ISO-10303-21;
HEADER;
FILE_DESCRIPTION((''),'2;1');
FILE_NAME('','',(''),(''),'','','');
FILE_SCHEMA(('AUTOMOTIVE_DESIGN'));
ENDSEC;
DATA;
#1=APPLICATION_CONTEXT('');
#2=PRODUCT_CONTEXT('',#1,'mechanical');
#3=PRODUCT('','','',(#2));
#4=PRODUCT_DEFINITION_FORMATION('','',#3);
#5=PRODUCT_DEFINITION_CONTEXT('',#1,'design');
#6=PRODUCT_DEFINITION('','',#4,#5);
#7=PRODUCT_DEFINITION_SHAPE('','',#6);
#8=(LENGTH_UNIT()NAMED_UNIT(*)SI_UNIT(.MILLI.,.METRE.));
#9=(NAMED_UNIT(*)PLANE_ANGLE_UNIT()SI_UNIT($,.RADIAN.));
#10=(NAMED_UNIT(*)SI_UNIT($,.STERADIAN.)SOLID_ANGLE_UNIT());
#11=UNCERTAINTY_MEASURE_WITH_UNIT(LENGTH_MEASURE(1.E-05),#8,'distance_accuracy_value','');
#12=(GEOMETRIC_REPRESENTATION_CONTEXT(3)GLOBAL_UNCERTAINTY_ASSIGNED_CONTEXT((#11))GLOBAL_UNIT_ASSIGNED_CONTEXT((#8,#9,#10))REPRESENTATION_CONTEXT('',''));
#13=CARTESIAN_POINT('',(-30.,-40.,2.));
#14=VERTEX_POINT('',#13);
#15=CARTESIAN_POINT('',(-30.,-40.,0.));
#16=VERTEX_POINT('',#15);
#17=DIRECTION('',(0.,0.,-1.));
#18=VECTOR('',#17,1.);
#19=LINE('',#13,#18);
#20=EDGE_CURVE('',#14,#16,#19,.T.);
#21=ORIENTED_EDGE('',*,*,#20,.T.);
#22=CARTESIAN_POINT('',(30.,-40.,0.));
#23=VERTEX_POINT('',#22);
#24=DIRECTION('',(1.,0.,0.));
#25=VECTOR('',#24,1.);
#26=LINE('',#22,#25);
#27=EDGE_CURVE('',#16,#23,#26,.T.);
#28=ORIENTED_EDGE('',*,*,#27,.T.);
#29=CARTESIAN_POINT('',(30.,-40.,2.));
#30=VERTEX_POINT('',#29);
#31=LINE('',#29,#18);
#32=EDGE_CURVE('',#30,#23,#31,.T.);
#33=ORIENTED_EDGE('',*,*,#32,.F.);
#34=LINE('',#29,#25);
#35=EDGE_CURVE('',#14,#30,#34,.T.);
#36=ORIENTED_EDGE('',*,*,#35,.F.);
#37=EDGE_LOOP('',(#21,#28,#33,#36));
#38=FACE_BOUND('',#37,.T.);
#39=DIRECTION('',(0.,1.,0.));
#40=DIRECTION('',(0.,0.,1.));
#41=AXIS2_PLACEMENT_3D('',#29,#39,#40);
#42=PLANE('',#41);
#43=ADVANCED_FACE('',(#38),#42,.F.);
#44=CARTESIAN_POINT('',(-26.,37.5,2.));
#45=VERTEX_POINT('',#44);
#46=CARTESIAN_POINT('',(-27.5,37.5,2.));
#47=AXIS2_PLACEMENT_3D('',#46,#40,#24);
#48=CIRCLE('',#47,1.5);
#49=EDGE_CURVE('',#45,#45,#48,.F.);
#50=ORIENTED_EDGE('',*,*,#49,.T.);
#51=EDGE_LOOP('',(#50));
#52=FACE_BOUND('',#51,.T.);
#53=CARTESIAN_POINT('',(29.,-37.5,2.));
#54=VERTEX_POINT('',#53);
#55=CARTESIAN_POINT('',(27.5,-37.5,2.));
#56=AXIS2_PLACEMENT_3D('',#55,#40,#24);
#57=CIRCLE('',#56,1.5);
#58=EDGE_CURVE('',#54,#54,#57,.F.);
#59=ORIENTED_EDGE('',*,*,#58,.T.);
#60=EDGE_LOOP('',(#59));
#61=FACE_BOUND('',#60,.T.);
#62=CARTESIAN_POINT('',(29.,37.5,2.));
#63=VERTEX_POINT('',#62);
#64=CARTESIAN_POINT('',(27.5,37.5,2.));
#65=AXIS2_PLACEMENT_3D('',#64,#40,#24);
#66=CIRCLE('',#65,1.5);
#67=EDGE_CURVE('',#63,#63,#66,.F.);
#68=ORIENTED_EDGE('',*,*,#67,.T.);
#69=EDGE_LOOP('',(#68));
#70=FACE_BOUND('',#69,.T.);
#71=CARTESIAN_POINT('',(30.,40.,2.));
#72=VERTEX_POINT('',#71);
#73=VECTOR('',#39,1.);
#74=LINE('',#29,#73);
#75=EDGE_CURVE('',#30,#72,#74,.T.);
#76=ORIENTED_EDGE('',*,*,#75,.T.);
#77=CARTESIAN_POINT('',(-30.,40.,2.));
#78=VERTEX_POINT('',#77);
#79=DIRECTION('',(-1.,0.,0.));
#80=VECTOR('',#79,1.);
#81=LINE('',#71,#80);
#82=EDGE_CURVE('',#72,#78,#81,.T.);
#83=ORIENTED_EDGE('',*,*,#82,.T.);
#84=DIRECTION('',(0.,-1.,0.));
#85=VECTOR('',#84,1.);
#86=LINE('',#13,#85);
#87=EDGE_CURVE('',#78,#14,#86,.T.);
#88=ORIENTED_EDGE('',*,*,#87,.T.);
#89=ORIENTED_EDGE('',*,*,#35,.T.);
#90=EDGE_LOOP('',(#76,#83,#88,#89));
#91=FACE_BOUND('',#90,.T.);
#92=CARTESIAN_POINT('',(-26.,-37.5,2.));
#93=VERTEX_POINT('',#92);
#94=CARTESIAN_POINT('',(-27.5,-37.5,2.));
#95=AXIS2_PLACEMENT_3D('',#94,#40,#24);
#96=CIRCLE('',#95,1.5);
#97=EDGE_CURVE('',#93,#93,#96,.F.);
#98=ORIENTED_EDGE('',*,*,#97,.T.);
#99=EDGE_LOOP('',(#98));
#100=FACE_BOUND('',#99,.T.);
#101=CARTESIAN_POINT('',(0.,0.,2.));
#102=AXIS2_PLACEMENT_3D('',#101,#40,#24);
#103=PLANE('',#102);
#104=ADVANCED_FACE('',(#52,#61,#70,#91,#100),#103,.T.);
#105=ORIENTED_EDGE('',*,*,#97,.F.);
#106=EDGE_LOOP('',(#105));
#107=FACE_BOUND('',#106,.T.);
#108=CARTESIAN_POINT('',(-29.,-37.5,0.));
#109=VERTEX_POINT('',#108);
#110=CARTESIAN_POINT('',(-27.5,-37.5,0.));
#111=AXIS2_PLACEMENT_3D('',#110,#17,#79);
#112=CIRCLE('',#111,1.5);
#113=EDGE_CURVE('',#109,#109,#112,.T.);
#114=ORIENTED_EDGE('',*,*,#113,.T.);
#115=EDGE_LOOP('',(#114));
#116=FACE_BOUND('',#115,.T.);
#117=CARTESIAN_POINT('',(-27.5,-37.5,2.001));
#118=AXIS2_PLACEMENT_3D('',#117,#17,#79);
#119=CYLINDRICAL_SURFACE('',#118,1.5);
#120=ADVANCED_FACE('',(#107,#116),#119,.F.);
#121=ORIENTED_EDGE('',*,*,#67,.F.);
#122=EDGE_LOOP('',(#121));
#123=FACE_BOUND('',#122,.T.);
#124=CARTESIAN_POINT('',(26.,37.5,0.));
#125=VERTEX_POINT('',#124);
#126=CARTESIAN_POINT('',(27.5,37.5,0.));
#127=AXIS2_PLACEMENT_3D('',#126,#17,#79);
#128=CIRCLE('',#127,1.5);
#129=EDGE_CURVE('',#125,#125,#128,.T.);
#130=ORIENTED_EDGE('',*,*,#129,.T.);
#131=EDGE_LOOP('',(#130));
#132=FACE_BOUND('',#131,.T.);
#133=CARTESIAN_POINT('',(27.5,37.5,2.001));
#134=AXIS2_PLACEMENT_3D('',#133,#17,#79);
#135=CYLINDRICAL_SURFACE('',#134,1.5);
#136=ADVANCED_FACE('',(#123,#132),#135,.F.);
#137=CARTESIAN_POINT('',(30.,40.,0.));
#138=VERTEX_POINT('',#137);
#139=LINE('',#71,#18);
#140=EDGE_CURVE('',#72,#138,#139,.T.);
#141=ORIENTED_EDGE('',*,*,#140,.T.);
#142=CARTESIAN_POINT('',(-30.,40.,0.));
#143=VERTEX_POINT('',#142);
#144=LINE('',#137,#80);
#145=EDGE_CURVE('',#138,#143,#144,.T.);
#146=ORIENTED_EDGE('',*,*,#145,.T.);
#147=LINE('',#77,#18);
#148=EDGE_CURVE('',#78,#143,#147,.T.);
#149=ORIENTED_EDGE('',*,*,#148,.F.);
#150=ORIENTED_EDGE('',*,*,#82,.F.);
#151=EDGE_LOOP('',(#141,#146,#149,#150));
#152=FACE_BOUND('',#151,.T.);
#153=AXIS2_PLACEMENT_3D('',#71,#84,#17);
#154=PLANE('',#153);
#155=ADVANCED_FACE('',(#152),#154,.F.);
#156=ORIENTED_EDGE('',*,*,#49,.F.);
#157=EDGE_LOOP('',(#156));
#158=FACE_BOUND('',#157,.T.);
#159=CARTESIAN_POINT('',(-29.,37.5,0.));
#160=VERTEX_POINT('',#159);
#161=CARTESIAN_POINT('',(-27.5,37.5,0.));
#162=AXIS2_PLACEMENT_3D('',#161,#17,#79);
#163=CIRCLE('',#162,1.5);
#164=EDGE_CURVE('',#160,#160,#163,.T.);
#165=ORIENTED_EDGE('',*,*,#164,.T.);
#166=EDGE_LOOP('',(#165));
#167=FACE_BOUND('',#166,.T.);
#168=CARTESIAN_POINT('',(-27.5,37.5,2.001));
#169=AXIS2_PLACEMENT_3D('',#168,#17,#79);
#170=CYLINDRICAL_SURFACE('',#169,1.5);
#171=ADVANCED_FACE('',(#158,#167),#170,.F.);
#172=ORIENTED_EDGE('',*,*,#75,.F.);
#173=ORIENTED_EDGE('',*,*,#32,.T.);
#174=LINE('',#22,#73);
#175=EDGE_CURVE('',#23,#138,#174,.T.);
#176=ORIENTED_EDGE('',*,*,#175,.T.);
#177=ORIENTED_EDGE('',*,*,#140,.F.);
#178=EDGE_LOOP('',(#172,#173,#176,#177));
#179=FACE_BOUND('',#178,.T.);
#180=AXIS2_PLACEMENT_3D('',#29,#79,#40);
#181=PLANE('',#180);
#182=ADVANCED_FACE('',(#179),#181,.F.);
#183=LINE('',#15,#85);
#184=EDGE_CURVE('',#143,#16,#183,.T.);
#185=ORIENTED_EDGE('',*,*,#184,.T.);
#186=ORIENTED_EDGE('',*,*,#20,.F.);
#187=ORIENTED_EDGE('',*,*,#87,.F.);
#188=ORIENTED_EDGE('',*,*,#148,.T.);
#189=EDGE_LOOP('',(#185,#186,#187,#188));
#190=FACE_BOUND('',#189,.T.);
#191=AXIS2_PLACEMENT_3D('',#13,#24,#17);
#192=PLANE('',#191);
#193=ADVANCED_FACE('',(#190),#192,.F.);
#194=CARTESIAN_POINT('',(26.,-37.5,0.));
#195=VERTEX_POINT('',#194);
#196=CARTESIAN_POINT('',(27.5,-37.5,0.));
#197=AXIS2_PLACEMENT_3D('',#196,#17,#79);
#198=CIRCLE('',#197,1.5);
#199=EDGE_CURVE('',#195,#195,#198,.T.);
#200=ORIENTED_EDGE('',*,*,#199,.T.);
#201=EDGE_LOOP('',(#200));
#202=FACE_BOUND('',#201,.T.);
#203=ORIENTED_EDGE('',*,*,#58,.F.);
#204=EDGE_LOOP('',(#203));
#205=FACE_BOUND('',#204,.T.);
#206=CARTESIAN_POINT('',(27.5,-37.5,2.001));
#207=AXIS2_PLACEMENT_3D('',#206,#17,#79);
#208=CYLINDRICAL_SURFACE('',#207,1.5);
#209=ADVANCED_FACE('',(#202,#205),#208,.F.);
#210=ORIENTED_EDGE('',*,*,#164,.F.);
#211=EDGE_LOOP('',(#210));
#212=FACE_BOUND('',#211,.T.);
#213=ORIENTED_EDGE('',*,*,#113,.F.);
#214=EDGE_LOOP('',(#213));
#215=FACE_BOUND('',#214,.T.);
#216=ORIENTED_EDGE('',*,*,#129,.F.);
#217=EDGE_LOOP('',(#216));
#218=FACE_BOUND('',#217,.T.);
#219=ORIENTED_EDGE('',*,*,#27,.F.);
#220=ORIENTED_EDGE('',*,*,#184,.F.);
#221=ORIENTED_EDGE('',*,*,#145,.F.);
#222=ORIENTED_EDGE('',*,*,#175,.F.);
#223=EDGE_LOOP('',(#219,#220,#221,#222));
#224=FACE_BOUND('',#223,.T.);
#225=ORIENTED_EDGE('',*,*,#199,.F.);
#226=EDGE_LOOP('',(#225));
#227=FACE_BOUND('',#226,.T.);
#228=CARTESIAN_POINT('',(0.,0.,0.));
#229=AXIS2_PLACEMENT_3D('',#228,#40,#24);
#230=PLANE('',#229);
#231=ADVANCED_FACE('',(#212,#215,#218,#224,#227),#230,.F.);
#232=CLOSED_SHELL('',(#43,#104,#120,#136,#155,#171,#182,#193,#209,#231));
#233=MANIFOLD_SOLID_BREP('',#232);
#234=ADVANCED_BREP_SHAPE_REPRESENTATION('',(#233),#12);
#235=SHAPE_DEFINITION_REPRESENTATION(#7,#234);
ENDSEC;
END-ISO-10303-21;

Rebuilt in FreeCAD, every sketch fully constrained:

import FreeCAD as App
import Part
import Sketcher
from FreeCAD import Vector
Q = App.Units.Quantity

doc = App.newDocument("Part")
body = doc.addObject("PartDesign::Body", "Body")

# Sketch on XY plane
sketch1 = body.newObject("Sketcher::SketchObject", "Sketch")
sketch1.AttachmentSupport = (doc.getObject("XY_Plane"), [""])
sketch1.MapMode = "FlatFace"
sketch1.addGeometry([
    Part.LineSegment(Vector(-30, 40, 0), Vector(-30, -40, 0)),
    Part.LineSegment(Vector(-30, -40, 0), Vector(30, -40, 0)),
    Part.LineSegment(Vector(30, -40, 0), Vector(30, 40, 0)),
    Part.LineSegment(Vector(30, 40, 0), Vector(-30, 40, 0)),
], False)
sketch1.addConstraint([
    Sketcher.Constraint("Coincident", 0, 2, 1, 1),
    Sketcher.Constraint("Coincident", 1, 2, 2, 1),
    Sketcher.Constraint("Coincident", 2, 2, 3, 1),
    Sketcher.Constraint("Coincident", 3, 2, 0, 1),
    Sketcher.Constraint("Vertical", 0),
    Sketcher.Constraint("Horizontal", 1),
    Sketcher.Constraint("Vertical", 2),
    Sketcher.Constraint("Horizontal", 3),
    Sketcher.Constraint("Symmetric", 0, 2, 2, 2, -1, 1),
    Sketcher.Constraint("DistanceX", 1, 1, 1, 2, Q("60 mm")),
    Sketcher.Constraint("DistanceY", 0, 2, 0, 1, Q("80 mm")),
])
pad1 = body.newObject("PartDesign::Pad", "Pad")
pad1.Profile = sketch1
pad1.Length = 2

# Sketch on XY plane
sketch2 = body.newObject("Sketcher::SketchObject", "Sketch001")
sketch2.AttachmentSupport = (doc.getObject("XY_Plane"), [""])
sketch2.MapMode = "FlatFace"
sketch2.addGeometry(Part.Circle(Vector(-27.5, -37.5, 0), Vector(0, 0, 1), 1.5), False)
sketch2.addConstraint([
    Sketcher.Constraint("Diameter", 0, Q("3 mm")),
    Sketcher.Constraint("DistanceX", 0, 3, -1, 1, Q("27.5 mm")),
    Sketcher.Constraint("DistanceY", 0, 3, -1, 1, Q("37.5 mm")),
])
pocket1 = body.newObject("PartDesign::Pocket", "Pocket")
pocket1.Profile = sketch2
pocket1.Type = "UpToFirst"
pocket1.Reversed = True

# Sketch on XY plane
sketch3 = body.newObject("Sketcher::SketchObject", "Sketch002")
sketch3.AttachmentSupport = (doc.getObject("XY_Plane"), [""])
sketch3.MapMode = "FlatFace"
sketch3.addGeometry(Part.Circle(Vector(27.5, -37.5, 0), Vector(0, 0, 1), 1.5), False)
sketch3.addConstraint([
    Sketcher.Constraint("Diameter", 0, Q("3 mm")),
    Sketcher.Constraint("DistanceX", -1, 1, 0, 3, Q("27.5 mm")),
    Sketcher.Constraint("DistanceY", 0, 3, -1, 1, Q("37.5 mm")),
])
pocket2 = body.newObject("PartDesign::Pocket", "Pocket001")
pocket2.Profile = sketch3
pocket2.Type = "UpToFirst"
pocket2.Reversed = True

# Sketch on XY plane
sketch4 = body.newObject("Sketcher::SketchObject", "Sketch003")
sketch4.AttachmentSupport = (doc.getObject("XY_Plane"), [""])
sketch4.MapMode = "FlatFace"
sketch4.addGeometry(Part.Circle(Vector(27.5, 37.5, 0), Vector(0, 0, 1), 1.5), False)
sketch4.addConstraint([
    Sketcher.Constraint("Diameter", 0, Q("3 mm")),
    Sketcher.Constraint("DistanceX", -1, 1, 0, 3, Q("27.5 mm")),
    Sketcher.Constraint("DistanceY", -1, 1, 0, 3, Q("37.5 mm")),
])
pocket3 = body.newObject("PartDesign::Pocket", "Pocket002")
pocket3.Profile = sketch4
pocket3.Type = "UpToFirst"
pocket3.Reversed = True

# Sketch on XY plane
sketch5 = body.newObject("Sketcher::SketchObject", "Sketch004")
sketch5.AttachmentSupport = (doc.getObject("XY_Plane"), [""])
sketch5.MapMode = "FlatFace"
sketch5.addGeometry(Part.Circle(Vector(-27.5, 37.5, 0), Vector(0, 0, 1), 1.5), False)
sketch5.addConstraint([
    Sketcher.Constraint("Diameter", 0, Q("3 mm")),
    Sketcher.Constraint("DistanceX", 0, 3, -1, 1, Q("27.5 mm")),
    Sketcher.Constraint("DistanceY", -1, 1, 0, 3, Q("37.5 mm")),
])
pocket4 = body.newObject("PartDesign::Pocket", "Pocket003")
pocket4.Profile = sketch5
pocket4.Type = "UpToFirst"
pocket4.Reversed = True

doc.recompute()
